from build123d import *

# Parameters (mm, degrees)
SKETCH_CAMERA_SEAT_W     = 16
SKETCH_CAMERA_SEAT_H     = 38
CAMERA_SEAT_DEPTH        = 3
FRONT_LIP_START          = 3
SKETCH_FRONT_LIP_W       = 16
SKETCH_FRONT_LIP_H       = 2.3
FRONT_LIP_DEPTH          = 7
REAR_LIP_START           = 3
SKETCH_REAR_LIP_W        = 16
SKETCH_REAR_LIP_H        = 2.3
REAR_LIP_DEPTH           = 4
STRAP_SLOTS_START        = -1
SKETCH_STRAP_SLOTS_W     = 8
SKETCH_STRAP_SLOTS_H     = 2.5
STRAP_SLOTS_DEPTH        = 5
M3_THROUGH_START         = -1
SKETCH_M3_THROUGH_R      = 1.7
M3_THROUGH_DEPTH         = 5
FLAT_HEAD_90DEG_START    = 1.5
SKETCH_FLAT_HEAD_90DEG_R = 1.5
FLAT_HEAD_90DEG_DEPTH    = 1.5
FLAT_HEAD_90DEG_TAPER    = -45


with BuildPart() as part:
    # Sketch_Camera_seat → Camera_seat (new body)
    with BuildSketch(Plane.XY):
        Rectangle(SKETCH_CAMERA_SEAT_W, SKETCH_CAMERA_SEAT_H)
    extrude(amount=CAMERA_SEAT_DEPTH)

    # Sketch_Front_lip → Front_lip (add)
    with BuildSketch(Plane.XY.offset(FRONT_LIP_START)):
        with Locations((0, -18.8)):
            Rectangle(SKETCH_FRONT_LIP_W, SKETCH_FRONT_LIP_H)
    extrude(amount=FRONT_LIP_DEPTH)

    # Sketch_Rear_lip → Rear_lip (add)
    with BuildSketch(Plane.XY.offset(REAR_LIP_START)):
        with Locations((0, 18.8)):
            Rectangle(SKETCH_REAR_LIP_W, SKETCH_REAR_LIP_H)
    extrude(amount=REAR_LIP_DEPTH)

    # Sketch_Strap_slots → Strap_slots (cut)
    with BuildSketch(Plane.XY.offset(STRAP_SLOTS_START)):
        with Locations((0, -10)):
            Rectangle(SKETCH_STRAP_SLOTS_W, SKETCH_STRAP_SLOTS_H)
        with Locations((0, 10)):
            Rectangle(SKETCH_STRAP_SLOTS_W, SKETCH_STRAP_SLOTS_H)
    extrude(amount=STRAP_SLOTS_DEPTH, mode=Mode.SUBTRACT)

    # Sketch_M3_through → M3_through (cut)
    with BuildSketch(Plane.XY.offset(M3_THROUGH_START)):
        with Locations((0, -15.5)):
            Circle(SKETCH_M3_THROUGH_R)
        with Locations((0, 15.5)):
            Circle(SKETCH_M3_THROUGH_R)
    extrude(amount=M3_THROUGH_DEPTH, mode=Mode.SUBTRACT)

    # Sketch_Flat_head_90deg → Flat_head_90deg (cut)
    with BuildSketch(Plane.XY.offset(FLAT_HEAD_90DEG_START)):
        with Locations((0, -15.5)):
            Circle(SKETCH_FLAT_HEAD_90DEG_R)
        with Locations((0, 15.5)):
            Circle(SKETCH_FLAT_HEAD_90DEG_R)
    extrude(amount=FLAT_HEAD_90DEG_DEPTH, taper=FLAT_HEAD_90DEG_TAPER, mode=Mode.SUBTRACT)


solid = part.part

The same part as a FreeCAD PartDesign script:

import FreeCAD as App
import Part
import Sketcher

V = App.Vector

doc = App.newDocument("Part")
params = doc.addObject("Spreadsheet::Sheet", "Params")
for row, (alias, value) in enumerate([
    ("sketch1_width", "16 mm"),
    ("sketch1_height", "38 mm"),
    ("pad1_length", "3 mm"),
    ("sketch2_width", "16 mm"),
    ("sketch2_height", "2.3 mm"),
    ("pad2_length", "7 mm"),
    ("sketch3_width", "16 mm"),
    ("sketch3_height", "2.3 mm"),
    ("pad3_length", "4 mm"),
    ("sketch4_width", "8 mm"),
    ("sketch4_height", "2.5 mm"),
    ("pocket1_length", "5 mm"),
    ("sketch5_diameter", "3.4 mm"),
    ("pocket2_length", "5 mm"),
    ("sketch6_diameter", "3 mm"),
    ("pocket3_length", "1.5 mm"),
    ("pocket3_taper", "45 deg"),
], start=1):
    params.set(f"A{row}", alias)
    params.set(f"B{row}", "=" + value)
    params.setAlias(f"B{row}", alias)

body = doc.addObject("PartDesign::Body", "Body")

# Sketch on XY plane
sketch1 = doc.addObject("Sketcher::SketchObject", "Sketch")
body.addObject(sketch1)
sketch1.AttachmentSupport = (doc.XY_Plane, [""])
sketch1.MapMode = "FlatFace"
sketch1.addGeometry([
    Part.LineSegment(V(-8, 19, 0), V(-8, -19, 0)),
    Part.LineSegment(V(-8, -19, 0), V(8, -19, 0)),
    Part.LineSegment(V(8, -19, 0), V(8, 19, 0)),
    Part.LineSegment(V(8, 19, 0), V(-8, 19, 0)),
], False)
sketch1.addConstraint([
    Sketcher.Constraint("Coincident", 0, 2, 1, 1),
    Sketcher.Constraint("Coincident", 1, 2, 2, 1),
    Sketcher.Constraint("Coincident", 2, 2, 3, 1),
    Sketcher.Constraint("Coincident", 3, 2, 0, 1),
    Sketcher.Constraint("Vertical", 0),
    Sketcher.Constraint("Horizontal", 1),
    Sketcher.Constraint("Vertical", 2),
    Sketcher.Constraint("Horizontal", 3),
    Sketcher.Constraint("Symmetric", 0, 2, 2, 2, -1, 1),
    Sketcher.Constraint("DistanceX", 1, 1, 1, 2, 16.0),
    Sketcher.Constraint("DistanceY", 0, 2, 0, 1, 38.0),
])
sketch1.setExpression("Constraints[9]", "Params.sketch1_width")
sketch1.setExpression("Constraints[10]", "Params.sketch1_height")
pad1 = doc.addObject("PartDesign::Pad", "Pad")
body.addObject(pad1)
pad1.Profile = sketch1
pad1.setExpression("Length", "Params.pad1_length")

# Sketch on XY plane
sketch2 = doc.addObject("Sketcher::SketchObject", "Sketch001")
body.addObject(sketch2)
sketch2.AttachmentSupport = (doc.XY_Plane, [""])
sketch2.MapMode = "FlatFace"
sketch2.AttachmentOffset = App.Placement(V(0, 0, 3), App.Rotation())
sketch2.addGeometry([
    Part.LineSegment(V(-8, -17.65, 0), V(-8, -19.95, 0)),
    Part.LineSegment(V(-8, -19.95, 0), V(8, -19.95, 0)),
    Part.LineSegment(V(8, -19.95, 0), V(8, -17.65, 0)),
    Part.LineSegment(V(8, -17.65, 0), V(-8, -17.65, 0)),
], False)
sketch2.addConstraint([
    Sketcher.Constraint("Coincident", 0, 2, 1, 1),
    Sketcher.Constraint("Coincident", 1, 2, 2, 1),
    Sketcher.Constraint("Coincident", 2, 2, 3, 1),
    Sketcher.Constraint("Coincident", 3, 2, 0, 1),
    Sketcher.Constraint("Vertical", 0),
    Sketcher.Constraint("Horizontal", 1),
    Sketcher.Constraint("Vertical", 2),
    Sketcher.Constraint("Horizontal", 3),
    Sketcher.Constraint("DistanceX", 1, 1, 1, 2, 16.0),
    Sketcher.Constraint("DistanceY", 0, 2, 0, 1, 2.3),
    Sketcher.Constraint("DistanceX", 0, 2, -1, 1, 8.0),
    Sketcher.Constraint("DistanceY", 0, 2, -1, 1, 19.95),
])
sketch2.setExpression("Constraints[8]", "Params.sketch2_width")
sketch2.setExpression("Constraints[9]", "Params.sketch2_height")
pad2 = doc.addObject("PartDesign::Pad", "Pad001")
body.addObject(pad2)
pad2.Profile = sketch2
pad2.setExpression("Length", "Params.pad2_length")

# Sketch on XY plane
sketch3 = doc.addObject("Sketcher::SketchObject", "Sketch002")
body.addObject(sketch3)
sketch3.AttachmentSupport = (doc.XY_Plane, [""])
sketch3.MapMode = "FlatFace"
sketch3.AttachmentOffset = App.Placement(V(0, 0, 3), App.Rotation())
sketch3.addGeometry([
    Part.LineSegment(V(-8, 19.95, 0), V(-8, 17.65, 0)),
    Part.LineSegment(V(-8, 17.65, 0), V(8, 17.65, 0)),
    Part.LineSegment(V(8, 17.65, 0), V(8, 19.95, 0)),
    Part.LineSegment(V(8, 19.95, 0), V(-8, 19.95, 0)),
], False)
sketch3.addConstraint([
    Sketcher.Constraint("Coincident", 0, 2, 1, 1),
    Sketcher.Constraint("Coincident", 1, 2, 2, 1),
    Sketcher.Constraint("Coincident", 2, 2, 3, 1),
    Sketcher.Constraint("Coincident", 3, 2, 0, 1),
    Sketcher.Constraint("Vertical", 0),
    Sketcher.Constraint("Horizontal", 1),
    Sketcher.Constraint("Vertical", 2),
    Sketcher.Constraint("Horizontal", 3),
    Sketcher.Constraint("DistanceX", 1, 1, 1, 2, 16.0),
    Sketcher.Constraint("DistanceY", 0, 2, 0, 1, 2.3),
    Sketcher.Constraint("DistanceX", 0, 2, -1, 1, 8.0),
    Sketcher.Constraint("DistanceY", -1, 1, 0, 2, 17.65),
])
sketch3.setExpression("Constraints[8]", "Params.sketch3_width")
sketch3.setExpression("Constraints[9]", "Params.sketch3_height")
pad3 = doc.addObject("PartDesign::Pad", "Pad002")
body.addObject(pad3)
pad3.Profile = sketch3
pad3.setExpression("Length", "Params.pad3_length")

# Sketch on XY plane
sketch4 = doc.addObject("Sketcher::SketchObject", "Sketch003")
body.addObject(sketch4)
sketch4.AttachmentSupport = (doc.XY_Plane, [""])
sketch4.MapMode = "FlatFace"
sketch4.AttachmentOffset = App.Placement(V(0, 0, -1), App.Rotation())
sketch4.addGeometry([
    Part.LineSegment(V(-4, -8.75, 0), V(-4, -11.25, 0)),  # 0
    Part.LineSegment(V(-4, -11.25, 0), V(4, -11.25, 0)),  # 1
    Part.LineSegment(V(4, -11.25, 0), V(4, -8.75, 0)),  # 2
    Part.LineSegment(V(4, -8.75, 0), V(-4, -8.75, 0)),  # 3
    Part.LineSegment(V(-4, 11.25, 0), V(-4, 8.75, 0)),  # 4
    Part.LineSegment(V(-4, 8.75, 0), V(4, 8.75, 0)),  # 5
    Part.LineSegment(V(4, 8.75, 0), V(4, 11.25, 0)),  # 6
    Part.LineSegment(V(4, 11.25, 0), V(-4, 11.25, 0)),  # 7
], False)
sketch4.addConstraint([
    Sketcher.Constraint("Coincident", 0, 2, 1, 1),
    Sketcher.Constraint("Coincident", 1, 2, 2, 1),
    Sketcher.Constraint("Coincident", 2, 2, 3, 1),
    Sketcher.Constraint("Coincident", 3, 2, 0, 1),
    Sketcher.Constraint("Coincident", 4, 2, 5, 1),
    Sketcher.Constraint("Coincident", 5, 2, 6, 1),
    Sketcher.Constraint("Coincident", 6, 2, 7, 1),
    Sketcher.Constraint("Coincident", 7, 2, 4, 1),
    Sketcher.Constraint("Vertical", 0),
    Sketcher.Constraint("Horizontal", 1),
    Sketcher.Constraint("Vertical", 2),
    Sketcher.Constraint("Horizontal", 3),
    Sketcher.Constraint("Vertical", 4),
    Sketcher.Constraint("Horizontal", 5),
    Sketcher.Constraint("Vertical", 6),
    Sketcher.Constraint("Horizontal", 7),
    Sketcher.Constraint("Symmetric", 2, 2, 4, 2, -1, 1),
    Sketcher.Constraint("Symmetric", 0, 2, 6, 2, -1, 1),
    Sketcher.Constraint("Vertical", 3, 2, 4, 2),
    Sketcher.Constraint("DistanceX", 1, 1, 1, 2, 8.0),
    Sketcher.Constraint("DistanceY", 0, 2, 0, 1, 2.5),
    Sketcher.Constraint("DistanceY", 0, 2, 4, 2, 20.0),
])
sketch4.setExpression("Constraints[19]", "Params.sketch4_width")
sketch4.setExpression("Constraints[20]", "Params.sketch4_height")
pocket1 = doc.addObject("PartDesign::Pocket", "Pocket")
body.addObject(pocket1)
pocket1.Profile = sketch4
pocket1.setExpression("Length", "Params.pocket1_length")
pocket1.Reversed = True

# Sketch on XY plane
sketch5 = doc.addObject("Sketcher::SketchObject", "Sketch004")
body.addObject(sketch5)
sketch5.AttachmentSupport = (doc.XY_Plane, [""])
sketch5.MapMode = "FlatFace"
sketch5.AttachmentOffset = App.Placement(V(0, 0, -1), App.Rotation())
sketch5.addGeometry([
    Part.Circle(V(0, -15.5, 0), V(0, 0, 1), 1.7),
    Part.Circle(V(0, 15.5, 0), V(0, 0, 1), 1.7),
], False)
sketch5.addConstraint([
    Sketcher.Constraint("Equal", 0, 1),
    Sketcher.Constraint("Symmetric", 0, 3, 1, 3, -1, 1),
    Sketcher.Constraint("PointOnObject", 0, 3, -2),
    Sketcher.Constraint("Diameter", 0, 3.4),
    Sketcher.Constraint("DistanceY", 0, 3, 1, 3, 31.0),
])
sketch5.setExpression("Constraints[3]", "Params.sketch5_diameter")
pocket2 = doc.addObject("PartDesign::Pocket", "Pocket001")
body.addObject(pocket2)
pocket2.Profile = sketch5
pocket2.setExpression("Length", "Params.pocket2_length")
pocket2.Reversed = True

# Sketch on XY plane
sketch6 = doc.addObject("Sketcher::SketchObject", "Sketch005")
body.addObject(sketch6)
sketch6.AttachmentSupport = (doc.XY_Plane, [""])
sketch6.MapMode = "FlatFace"
sketch6.AttachmentOffset = App.Placement(V(0, 0, 1.5), App.Rotation())
sketch6.addGeometry([
    Part.Circle(V(0, -15.5, 0), V(0, 0, 1), 1.5),
    Part.Circle(V(0, 15.5, 0), V(0, 0, 1), 1.5),
], False)
sketch6.addConstraint([
    Sketcher.Constraint("Equal", 0, 1),
    Sketcher.Constraint("Symmetric", 0, 3, 1, 3, -1, 1),
    Sketcher.Constraint("PointOnObject", 0, 3, -2),
    Sketcher.Constraint("Diameter", 0, 3.0),
    Sketcher.Constraint("DistanceY", 0, 3, 1, 3, 31.0),
])
sketch6.setExpression("Constraints[3]", "Params.sketch6_diameter")
pocket3 = doc.addObject("PartDesign::Pocket", "Pocket002")
body.addObject(pocket3)
pocket3.Profile = sketch6
pocket3.setExpression("Length", "Params.pocket3_length")
pocket3.Reversed = True
pocket3.setExpression("TaperAngle", "Params.pocket3_taper")

doc.recompute()
